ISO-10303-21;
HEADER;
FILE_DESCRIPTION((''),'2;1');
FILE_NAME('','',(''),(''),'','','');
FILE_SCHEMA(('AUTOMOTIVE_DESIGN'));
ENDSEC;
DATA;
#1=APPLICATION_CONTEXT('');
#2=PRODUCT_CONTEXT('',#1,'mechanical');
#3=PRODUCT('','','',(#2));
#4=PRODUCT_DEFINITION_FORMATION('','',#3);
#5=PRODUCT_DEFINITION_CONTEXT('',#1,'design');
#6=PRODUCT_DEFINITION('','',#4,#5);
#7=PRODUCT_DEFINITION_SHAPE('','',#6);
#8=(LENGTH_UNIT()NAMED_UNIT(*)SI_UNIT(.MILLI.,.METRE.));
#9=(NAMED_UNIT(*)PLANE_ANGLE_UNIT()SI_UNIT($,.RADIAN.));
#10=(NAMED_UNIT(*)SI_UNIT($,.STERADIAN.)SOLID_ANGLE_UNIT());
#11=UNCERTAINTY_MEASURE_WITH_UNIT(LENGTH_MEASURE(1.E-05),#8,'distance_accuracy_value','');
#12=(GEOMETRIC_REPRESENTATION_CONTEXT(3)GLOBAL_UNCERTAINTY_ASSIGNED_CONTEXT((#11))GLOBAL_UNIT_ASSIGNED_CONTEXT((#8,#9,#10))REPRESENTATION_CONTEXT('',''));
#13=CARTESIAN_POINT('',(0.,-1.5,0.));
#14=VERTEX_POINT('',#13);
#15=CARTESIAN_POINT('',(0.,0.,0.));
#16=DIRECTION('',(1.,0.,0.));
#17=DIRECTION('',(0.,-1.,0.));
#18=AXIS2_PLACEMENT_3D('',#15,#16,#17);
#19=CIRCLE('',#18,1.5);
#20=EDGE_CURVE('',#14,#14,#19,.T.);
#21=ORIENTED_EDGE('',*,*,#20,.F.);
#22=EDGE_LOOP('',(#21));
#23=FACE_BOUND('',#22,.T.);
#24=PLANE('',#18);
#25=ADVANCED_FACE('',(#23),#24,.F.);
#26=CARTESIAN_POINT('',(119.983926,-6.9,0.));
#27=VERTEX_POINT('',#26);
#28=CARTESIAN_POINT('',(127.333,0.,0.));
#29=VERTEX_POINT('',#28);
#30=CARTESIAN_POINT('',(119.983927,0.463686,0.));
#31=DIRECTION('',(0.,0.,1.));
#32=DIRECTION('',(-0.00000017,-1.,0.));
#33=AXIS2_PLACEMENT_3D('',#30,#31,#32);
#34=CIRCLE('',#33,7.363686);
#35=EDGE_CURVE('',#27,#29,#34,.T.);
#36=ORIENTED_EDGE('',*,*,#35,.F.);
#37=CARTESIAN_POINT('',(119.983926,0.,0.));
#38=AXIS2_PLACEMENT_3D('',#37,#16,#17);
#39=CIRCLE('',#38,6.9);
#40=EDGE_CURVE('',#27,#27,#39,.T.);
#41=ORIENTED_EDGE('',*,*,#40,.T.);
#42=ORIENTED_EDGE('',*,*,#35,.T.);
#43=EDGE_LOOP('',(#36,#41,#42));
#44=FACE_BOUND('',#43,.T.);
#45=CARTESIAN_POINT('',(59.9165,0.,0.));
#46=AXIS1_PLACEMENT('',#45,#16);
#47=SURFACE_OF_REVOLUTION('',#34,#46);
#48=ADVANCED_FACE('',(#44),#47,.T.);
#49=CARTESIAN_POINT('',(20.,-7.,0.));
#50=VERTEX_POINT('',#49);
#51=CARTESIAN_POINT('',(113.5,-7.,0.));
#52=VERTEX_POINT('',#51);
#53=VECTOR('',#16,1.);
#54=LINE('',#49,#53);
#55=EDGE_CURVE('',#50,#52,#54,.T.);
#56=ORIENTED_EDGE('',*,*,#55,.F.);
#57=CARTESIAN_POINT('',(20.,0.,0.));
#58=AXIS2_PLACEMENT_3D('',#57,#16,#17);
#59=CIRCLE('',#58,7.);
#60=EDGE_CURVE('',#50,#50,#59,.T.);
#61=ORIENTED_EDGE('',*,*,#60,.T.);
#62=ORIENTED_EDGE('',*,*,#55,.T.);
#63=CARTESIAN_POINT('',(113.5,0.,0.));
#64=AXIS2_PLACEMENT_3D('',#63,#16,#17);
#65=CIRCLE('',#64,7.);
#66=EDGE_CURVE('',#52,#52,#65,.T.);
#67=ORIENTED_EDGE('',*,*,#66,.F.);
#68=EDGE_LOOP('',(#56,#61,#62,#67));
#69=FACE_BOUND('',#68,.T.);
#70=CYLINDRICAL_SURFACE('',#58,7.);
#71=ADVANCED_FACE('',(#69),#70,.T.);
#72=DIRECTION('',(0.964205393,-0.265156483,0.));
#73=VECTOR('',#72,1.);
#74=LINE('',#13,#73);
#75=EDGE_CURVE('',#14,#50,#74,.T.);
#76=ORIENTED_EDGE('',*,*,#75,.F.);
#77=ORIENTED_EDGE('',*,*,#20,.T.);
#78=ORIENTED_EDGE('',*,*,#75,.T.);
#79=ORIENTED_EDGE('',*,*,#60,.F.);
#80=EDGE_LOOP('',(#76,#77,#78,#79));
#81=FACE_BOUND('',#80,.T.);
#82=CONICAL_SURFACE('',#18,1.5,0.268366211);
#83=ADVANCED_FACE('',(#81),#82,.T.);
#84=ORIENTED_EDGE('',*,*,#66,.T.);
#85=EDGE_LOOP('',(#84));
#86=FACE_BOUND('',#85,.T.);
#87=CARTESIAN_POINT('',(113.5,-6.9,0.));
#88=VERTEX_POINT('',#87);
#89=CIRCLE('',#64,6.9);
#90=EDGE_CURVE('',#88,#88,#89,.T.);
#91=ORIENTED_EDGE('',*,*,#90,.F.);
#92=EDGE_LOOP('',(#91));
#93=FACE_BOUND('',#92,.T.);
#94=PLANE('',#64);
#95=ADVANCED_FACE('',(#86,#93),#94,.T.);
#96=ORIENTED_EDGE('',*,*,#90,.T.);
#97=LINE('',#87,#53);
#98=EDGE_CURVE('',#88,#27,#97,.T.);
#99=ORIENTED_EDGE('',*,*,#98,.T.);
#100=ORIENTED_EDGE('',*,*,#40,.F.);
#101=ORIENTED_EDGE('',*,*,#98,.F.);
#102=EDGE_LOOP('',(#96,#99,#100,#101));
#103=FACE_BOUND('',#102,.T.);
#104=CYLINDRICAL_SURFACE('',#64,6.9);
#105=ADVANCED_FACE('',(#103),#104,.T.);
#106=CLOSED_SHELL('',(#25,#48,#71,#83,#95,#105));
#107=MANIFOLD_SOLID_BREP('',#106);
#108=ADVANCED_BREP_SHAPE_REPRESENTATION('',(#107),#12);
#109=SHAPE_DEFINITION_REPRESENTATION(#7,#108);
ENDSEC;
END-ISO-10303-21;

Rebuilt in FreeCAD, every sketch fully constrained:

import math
import FreeCAD as App
import Part
import Sketcher

doc = App.newDocument("Part")
body = doc.addObject("PartDesign::Body", "Body")

# Sketch on XY plane
sketch1 = doc.addObject("Sketcher::SketchObject", "Sketch")
body.addObject(sketch1)
sketch1.AttachmentSupport = (doc.XY_Plane, [""])
sketch1.MapMode = "FlatFace"
sketch1.addGeometry(Part.LineSegment(App.Vector(0, 0, 0), App.Vector(0, -1.5, 0)), False)
sketch1.addGeometry(Part.LineSegment(App.Vector(0, -1.5, 0), App.Vector(20, -7, 0)), False)
sketch1.addGeometry(Part.LineSegment(App.Vector(20, -7, 0), App.Vector(113.5, -7, 0)), False)
sketch1.addGeometry(Part.LineSegment(App.Vector(113.5, -7, 0), App.Vector(113.5, -6.9, 0)), False)
sketch1.addGeometry(Part.LineSegment(App.Vector(113.5, -6.9, 0), App.Vector(119.983926, -6.9, 0)), False)
sketch1.addGeometry(Part.ArcOfCircle(Part.Circle(App.Vector(119.983927, 0.463686, 0), App.Vector(0, 0, 1), 7.363686), math.radians(-90.00001), math.radians(-3.610264)), False)
sketch1.addGeometry(Part.LineSegment(App.Vector(127.333, 0, 0), App.Vector(0, 0, 0)), False)
sketch1.addConstraint(Sketcher.Constraint("Coincident", 0, 2, 1, 1))
sketch1.addConstraint(Sketcher.Constraint("Coincident", 1, 2, 2, 1))
sketch1.addConstraint(Sketcher.Constraint("Coincident", 2, 2, 3, 1))
sketch1.addConstraint(Sketcher.Constraint("Coincident", 3, 2, 4, 1))
sketch1.addConstraint(Sketcher.Constraint("Tangent", 4, 2, 5, 1))
sketch1.addConstraint(Sketcher.Constraint("Coincident", 5, 2, 6, 1))
sketch1.addConstraint(Sketcher.Constraint("Coincident", 6, 2, 0, 1))
sketch1.addConstraint(Sketcher.Constraint("Vertical", 0))
sketch1.addConstraint(Sketcher.Constraint("Horizontal", 2))
sketch1.addConstraint(Sketcher.Constraint("Vertical", 3))
sketch1.addConstraint(Sketcher.Constraint("Horizontal", 4))
sketch1.addConstraint(Sketcher.Constraint("Horizontal", 6))
sketch1.addConstraint(Sketcher.Constraint("Coincident", 6, 2, -1, 1))
sketch1.addConstraint(Sketcher.Constraint("DistanceX", 2, 1, 2, 2, 93.5))
sketch1.addConstraint(Sketcher.Constraint("DistanceY", 0, 2, 0, 1, 1.5))
sketch1.addConstraint(Sketcher.Constraint("DistanceY", 3, 1, 3, 2, 0.1))
sketch1.addConstraint(Sketcher.Constraint("DistanceX", -1, 1, 1, 2, 20.0))
sketch1.addConstraint(Sketcher.Constraint("DistanceY", 1, 2, -1, 1, 7.0))
sketch1.addConstraint(Sketcher.Constraint("DistanceX", 6, 2, 6, 1, 127.333))
sketch1.addConstraint(Sketcher.Constraint("Radius", 5, 7.363686))
revolution = doc.addObject("PartDesign::Revolution", "Revolution")
body.addObject(revolution)
revolution.Profile = sketch1
revolution.ReferenceAxis = (sketch1, ["H_Axis"])
revolution.Angle = 360

doc.recompute()
